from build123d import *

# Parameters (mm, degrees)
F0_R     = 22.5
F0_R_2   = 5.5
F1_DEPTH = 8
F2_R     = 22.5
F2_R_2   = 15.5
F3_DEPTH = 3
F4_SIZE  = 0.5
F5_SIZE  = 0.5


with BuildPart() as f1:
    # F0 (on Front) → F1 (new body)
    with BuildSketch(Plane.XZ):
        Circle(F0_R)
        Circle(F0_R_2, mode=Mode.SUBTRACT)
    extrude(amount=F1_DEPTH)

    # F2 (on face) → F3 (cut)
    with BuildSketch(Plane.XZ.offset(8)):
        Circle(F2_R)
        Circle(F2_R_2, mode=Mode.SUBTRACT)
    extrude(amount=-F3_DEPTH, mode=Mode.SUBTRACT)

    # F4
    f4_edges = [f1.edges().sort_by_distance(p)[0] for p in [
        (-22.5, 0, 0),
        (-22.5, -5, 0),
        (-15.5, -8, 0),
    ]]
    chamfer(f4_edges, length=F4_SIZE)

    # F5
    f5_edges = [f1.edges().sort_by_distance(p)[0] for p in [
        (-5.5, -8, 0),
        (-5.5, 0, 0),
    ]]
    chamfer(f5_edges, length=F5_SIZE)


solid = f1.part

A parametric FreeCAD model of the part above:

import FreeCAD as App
import Part
import Sketcher

V = App.Vector


def edges_at(feature, points):
    """Names of the edges that pass closest to the given points."""
    edges = feature.Shape.Edges
    near = lambda p: min(range(len(edges)), key=lambda i: edges[i].distToShape(Part.Vertex(*p))[0])
    return sorted({f"Edge{near(p) + 1}" for p in points})

doc = App.newDocument("Part")
body = doc.addObject("PartDesign::Body", "Body")

sketch1 = body.newObject("Sketcher::SketchObject", "Sketch")
sketch1.AttachmentSupport = (doc.getObject("XZ_Plane"), [""])
sketch1.MapMode = "FlatFace"
sketch1.addGeometry([
    Part.Circle(V(0, 0, 0), V(0, 0, 1), 22),
    Part.Circle(V(0, 0, 0), V(0, 0, 1), 6),
], False)
sketch1.addConstraint([
    Sketcher.Constraint("Coincident", 0, 3, -1, 1),
    Sketcher.Constraint("Coincident", 1, 3, -1, 1),
    Sketcher.Constraint("Diameter", 0, 45.0),
    Sketcher.Constraint("Diameter", 1, 11.0),
])
pad1 = body.newObject("PartDesign::Pad", "Pad")
pad1.Profile = sketch1
pad1.Length = 8

sketch2 = body.newObject("Sketcher::SketchObject", "Sketch001")
sketch2.AttachmentSupport = (doc.getObject("XZ_Plane"), [""])
sketch2.MapMode = "FlatFace"
sketch2.AttachmentOffset = App.Placement(V(0, 0, 8), App.Rotation())
sketch2.addGeometry([
    Part.Circle(V(0, 0, 0), V(0, 0, 1), 22),
    Part.Circle(V(0, 0, 0), V(0, 0, 1), 16),
], False)
sketch2.addConstraint([
    Sketcher.Constraint("Coincident", 0, 3, -1, 1),
    Sketcher.Constraint("Coincident", 1, 3, -1, 1),
    Sketcher.Constraint("Diameter", 0, 45.0),
    Sketcher.Constraint("Diameter", 1, 31.0),
])
pocket1 = body.newObject("PartDesign::Pocket", "Pocket")
pocket1.Profile = sketch2
pocket1.Length = 3
doc.recompute()

chamfer = body.newObject("PartDesign::Chamfer", "Chamfer")
chamfer.Base = (pocket1, edges_at(pocket1, [(-22.5, 0, 0), (-22.5, -5, 0), (-15.5, -8, 0)]))
chamfer.Size = 0.5
doc.recompute()

chamfer2 = body.newObject("PartDesign::Chamfer", "Chamfer001")
chamfer2.Base = (chamfer, edges_at(chamfer, [(-5.5, -8, 0), (-5.5, 0, 0)]))
chamfer2.Size = 0.5

doc.recompute()
